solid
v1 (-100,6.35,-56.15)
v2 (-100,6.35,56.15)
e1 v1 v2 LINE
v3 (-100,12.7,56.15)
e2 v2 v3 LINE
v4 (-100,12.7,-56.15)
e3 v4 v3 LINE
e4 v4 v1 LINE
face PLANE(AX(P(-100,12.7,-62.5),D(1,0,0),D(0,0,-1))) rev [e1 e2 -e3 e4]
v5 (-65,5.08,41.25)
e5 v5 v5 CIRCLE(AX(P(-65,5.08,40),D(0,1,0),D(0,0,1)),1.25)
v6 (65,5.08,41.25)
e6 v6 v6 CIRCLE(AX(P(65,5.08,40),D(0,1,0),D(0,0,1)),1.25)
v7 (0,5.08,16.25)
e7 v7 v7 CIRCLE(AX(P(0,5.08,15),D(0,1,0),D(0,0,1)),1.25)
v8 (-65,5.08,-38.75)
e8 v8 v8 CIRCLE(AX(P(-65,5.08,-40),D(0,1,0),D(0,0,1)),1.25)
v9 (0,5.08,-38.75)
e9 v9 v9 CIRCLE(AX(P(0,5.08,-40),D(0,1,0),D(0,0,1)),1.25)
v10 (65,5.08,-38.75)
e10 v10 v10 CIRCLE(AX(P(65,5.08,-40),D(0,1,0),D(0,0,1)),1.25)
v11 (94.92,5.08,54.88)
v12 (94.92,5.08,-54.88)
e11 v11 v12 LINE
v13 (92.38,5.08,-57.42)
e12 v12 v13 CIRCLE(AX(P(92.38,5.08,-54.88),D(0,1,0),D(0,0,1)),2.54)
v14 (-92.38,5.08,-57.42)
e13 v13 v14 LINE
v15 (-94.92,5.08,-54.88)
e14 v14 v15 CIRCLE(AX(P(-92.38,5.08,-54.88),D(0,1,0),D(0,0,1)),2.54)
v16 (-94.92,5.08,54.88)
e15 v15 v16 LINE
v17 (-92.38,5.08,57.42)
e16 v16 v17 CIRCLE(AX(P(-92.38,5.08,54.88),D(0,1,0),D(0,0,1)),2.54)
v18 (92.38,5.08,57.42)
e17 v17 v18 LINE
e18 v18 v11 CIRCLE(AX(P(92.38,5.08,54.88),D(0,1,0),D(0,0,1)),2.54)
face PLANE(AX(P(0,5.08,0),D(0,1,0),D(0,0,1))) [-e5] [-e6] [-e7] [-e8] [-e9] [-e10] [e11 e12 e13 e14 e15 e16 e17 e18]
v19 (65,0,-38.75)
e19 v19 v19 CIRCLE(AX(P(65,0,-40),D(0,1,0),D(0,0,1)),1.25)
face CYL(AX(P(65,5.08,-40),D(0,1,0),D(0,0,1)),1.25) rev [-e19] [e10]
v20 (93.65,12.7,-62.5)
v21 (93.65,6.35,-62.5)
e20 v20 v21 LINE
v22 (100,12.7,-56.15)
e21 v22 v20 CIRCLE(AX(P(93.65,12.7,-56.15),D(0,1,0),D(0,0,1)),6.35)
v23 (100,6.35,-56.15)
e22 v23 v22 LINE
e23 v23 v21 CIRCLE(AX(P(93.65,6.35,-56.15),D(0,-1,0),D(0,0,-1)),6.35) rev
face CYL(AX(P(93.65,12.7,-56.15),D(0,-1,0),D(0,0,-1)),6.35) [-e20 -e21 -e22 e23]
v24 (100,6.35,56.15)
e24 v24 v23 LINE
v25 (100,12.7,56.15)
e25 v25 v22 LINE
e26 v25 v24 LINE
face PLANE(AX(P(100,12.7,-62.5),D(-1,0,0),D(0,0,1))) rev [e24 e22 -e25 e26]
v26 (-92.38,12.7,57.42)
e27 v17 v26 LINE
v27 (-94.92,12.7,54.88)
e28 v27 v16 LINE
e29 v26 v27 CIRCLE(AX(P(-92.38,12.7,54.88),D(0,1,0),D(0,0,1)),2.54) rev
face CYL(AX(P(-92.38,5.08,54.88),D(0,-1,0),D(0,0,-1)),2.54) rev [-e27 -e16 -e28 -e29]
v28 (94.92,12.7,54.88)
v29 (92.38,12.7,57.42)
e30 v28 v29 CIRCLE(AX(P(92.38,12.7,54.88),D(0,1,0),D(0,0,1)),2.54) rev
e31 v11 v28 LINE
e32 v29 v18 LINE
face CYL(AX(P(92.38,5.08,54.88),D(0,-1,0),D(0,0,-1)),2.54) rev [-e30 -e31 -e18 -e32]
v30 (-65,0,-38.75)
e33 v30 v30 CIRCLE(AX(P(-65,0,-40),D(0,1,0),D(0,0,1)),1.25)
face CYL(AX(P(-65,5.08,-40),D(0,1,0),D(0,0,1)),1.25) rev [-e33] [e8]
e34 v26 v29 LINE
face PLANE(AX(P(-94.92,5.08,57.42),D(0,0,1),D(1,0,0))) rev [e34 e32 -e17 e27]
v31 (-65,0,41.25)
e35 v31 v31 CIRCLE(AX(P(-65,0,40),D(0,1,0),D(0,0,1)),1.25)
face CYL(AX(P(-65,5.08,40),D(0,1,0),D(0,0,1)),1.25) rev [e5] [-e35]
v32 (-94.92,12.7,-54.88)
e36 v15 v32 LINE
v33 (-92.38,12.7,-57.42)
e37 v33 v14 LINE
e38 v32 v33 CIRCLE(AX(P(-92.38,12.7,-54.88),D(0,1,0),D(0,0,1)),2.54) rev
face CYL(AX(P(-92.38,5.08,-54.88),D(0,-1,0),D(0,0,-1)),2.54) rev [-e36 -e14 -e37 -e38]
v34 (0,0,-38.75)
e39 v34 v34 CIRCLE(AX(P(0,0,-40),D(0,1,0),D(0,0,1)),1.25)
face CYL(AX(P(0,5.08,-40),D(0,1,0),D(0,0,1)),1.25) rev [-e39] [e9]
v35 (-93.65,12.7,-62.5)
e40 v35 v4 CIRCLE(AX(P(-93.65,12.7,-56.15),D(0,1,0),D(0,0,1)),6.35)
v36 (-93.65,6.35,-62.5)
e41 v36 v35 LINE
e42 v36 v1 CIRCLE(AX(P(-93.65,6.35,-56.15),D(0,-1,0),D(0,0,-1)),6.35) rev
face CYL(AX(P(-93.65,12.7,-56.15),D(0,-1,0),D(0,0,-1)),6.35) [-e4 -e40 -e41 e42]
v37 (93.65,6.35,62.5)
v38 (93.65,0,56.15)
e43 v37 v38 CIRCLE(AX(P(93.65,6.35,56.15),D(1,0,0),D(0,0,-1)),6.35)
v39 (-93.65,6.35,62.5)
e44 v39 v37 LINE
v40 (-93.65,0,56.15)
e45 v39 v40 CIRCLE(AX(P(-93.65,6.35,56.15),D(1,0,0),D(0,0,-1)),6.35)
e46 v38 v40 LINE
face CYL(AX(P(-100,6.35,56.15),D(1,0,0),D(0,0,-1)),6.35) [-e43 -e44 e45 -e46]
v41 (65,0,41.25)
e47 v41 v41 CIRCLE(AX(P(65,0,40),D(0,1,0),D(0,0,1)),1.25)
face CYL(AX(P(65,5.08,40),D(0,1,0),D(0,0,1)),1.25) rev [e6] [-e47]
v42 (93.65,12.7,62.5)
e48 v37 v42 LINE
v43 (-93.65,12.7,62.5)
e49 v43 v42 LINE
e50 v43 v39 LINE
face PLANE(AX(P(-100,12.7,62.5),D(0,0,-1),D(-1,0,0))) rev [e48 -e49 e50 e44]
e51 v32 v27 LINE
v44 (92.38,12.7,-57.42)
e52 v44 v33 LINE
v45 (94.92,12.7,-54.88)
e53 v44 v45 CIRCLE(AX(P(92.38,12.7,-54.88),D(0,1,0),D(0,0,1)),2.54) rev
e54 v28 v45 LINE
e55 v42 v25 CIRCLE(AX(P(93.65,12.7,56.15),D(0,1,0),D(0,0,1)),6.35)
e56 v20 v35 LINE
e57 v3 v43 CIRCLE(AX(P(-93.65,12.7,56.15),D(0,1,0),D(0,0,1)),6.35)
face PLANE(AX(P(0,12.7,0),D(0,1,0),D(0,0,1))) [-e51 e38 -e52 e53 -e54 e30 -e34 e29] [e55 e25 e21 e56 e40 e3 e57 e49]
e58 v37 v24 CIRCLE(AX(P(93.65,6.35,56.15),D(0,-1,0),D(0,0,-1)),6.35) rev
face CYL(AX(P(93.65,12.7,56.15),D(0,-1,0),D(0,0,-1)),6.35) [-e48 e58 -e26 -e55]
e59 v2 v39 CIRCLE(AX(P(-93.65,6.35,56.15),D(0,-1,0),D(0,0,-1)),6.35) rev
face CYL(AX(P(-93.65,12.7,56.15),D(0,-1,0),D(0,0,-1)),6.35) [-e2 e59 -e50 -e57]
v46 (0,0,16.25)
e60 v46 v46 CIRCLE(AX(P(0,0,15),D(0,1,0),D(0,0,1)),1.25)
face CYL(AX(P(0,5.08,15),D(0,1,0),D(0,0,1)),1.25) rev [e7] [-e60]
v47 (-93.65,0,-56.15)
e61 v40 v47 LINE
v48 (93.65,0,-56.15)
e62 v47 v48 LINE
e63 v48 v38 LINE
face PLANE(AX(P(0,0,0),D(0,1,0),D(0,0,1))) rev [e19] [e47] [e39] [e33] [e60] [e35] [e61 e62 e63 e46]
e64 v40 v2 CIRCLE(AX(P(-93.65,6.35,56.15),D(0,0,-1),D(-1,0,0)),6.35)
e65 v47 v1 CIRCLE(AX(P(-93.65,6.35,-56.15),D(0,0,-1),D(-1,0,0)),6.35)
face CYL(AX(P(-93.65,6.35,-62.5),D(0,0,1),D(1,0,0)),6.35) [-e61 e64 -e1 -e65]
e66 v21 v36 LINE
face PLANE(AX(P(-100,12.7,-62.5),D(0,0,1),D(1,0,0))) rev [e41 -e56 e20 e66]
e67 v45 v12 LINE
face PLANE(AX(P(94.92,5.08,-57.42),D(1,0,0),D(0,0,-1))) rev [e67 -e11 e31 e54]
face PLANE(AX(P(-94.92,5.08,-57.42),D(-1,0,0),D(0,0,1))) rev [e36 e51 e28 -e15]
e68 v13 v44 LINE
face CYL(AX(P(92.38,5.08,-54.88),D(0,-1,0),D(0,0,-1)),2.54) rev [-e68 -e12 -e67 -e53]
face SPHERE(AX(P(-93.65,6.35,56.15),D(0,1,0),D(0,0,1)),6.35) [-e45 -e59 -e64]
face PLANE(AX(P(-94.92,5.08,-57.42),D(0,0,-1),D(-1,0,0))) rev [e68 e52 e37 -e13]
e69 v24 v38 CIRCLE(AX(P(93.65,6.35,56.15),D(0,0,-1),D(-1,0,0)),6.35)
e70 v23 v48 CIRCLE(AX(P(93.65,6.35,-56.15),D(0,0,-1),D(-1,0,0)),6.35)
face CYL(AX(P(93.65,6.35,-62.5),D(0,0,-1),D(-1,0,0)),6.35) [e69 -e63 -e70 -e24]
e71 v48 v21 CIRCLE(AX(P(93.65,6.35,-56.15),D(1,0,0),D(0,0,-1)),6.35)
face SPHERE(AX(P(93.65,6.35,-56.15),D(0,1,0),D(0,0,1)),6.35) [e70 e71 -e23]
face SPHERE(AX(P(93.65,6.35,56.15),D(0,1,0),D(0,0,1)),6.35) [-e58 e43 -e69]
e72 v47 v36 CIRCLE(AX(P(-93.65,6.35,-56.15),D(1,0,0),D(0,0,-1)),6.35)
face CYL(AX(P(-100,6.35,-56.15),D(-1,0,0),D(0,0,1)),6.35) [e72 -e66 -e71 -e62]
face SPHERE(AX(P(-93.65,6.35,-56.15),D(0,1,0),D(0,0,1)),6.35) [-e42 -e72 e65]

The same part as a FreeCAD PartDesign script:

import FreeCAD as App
import Part
import Sketcher
Q = App.Units.Quantity


def edges_at(feature, points):
    """Names of the edges that pass closest to the given points."""
    edges = feature.Shape.Edges
    near = lambda p: min(range(len(edges)), key=lambda i: edges[i].distToShape(Part.Vertex(*p))[0])
    return sorted({f"Edge{near(p) + 1}" for p in points})


def add_polygon(sketch, points):
    """Adds a closed chain of lines whose ends are joined by coincident constraints."""
    first, n = sketch.GeometryCount, len(points)
    for a, b in zip(points, points[1:] + points[:1]):
        sketch.addGeometry(Part.LineSegment(App.Vector(*a, 0), App.Vector(*b, 0)), False)
    for i in range(n):
        sketch.addConstraint(Sketcher.Constraint("Coincident", first + i, 2, first + (i + 1) % n, 1))

doc = App.newDocument("Part")
body = doc.addObject("PartDesign::Body", "Body")

# Sketch on XZ plane
sketch1 = doc.addObject("Sketcher::SketchObject", "Sketch")
body.addObject(sketch1)
sketch1.AttachmentSupport = (doc.XZ_Plane, [""])
sketch1.MapMode = "FlatFace"
add_polygon(sketch1, [(-100, -62.5), (-100, 62.5), (100, 62.5), (100, -62.5)])  # lines 0-3
sketch1.addConstraint(Sketcher.Constraint("Vertical", 0))
sketch1.addConstraint(Sketcher.Constraint("Horizontal", 1))
sketch1.addConstraint(Sketcher.Constraint("Vertical", 2))
sketch1.addConstraint(Sketcher.Constraint("Horizontal", 3))
sketch1.addConstraint(Sketcher.Constraint("Symmetric", 0, 2, 2, 2, -1, 1))
sketch1.addConstraint(Sketcher.Constraint("DistanceX", 1, 1, 1, 2, 200.0))
sketch1.addConstraint(Sketcher.Constraint("DistanceY", 0, 1, 0, 2, 125.0))
pad1 = doc.addObject("PartDesign::Pad", "Pad")
body.addObject(pad1)
pad1.Profile = sketch1
pad1.Length = Q("0.5 in")
pad1.Reversed = True

# Sketch on XZ plane
sketch2 = doc.addObject("Sketcher::SketchObject", "Sketch001")
body.addObject(sketch2)
sketch2.AttachmentSupport = (doc.XZ_Plane, [""])
sketch2.MapMode = "FlatFace"
sketch2.AttachmentOffset = App.Placement(App.Vector(0, 0, -0.5 * 25.4), App.Rotation())
add_polygon(sketch2, [(-94.92, -57.42), (-94.92, 57.42), (94.92, 57.42), (94.92, -57.42)])  # lines 0-3
sketch2.addConstraint(Sketcher.Constraint("Vertical", 0))
sketch2.addConstraint(Sketcher.Constraint("Horizontal", 1))
sketch2.addConstraint(Sketcher.Constraint("Vertical", 2))
sketch2.addConstraint(Sketcher.Constraint("Horizontal", 3))
sketch2.addConstraint(Sketcher.Constraint("Symmetric", 0, 2, 2, 2, -1, 1))
sketch2.addConstraint(Sketcher.Constraint("DistanceX", 1, 1, 1, 2, 189.84))
sketch2.addConstraint(Sketcher.Constraint("DistanceY", 0, 1, 0, 2, 114.84))
pocket1 = doc.addObject("PartDesign::Pocket", "Pocket")
body.addObject(pocket1)
pocket1.Profile = sketch2
pocket1.Length = Q("0.3 in")
pocket1.Reversed = True
doc.recompute()

fillet = doc.addObject("PartDesign::Fillet", "Fillet")
body.addObject(fillet)
fillet.Base = (pocket1, edges_at(pocket1, [
    (94.92, 8.89, -57.42),
    (94.92, 8.89, 57.42),
    (-94.92, 8.89, 57.42),
    (-94.92, 8.89, -57.42),
]))
fillet.Radius = Q("0.1 in")
doc.recompute()

fillet2 = doc.addObject("PartDesign::Fillet", "Fillet001")
body.addObject(fillet2)
fillet2.Base = (fillet, edges_at(fillet, [
    (-100, 6.35, -62.5),
    (100, 6.35, -62.5),
    (100, 6.35, 62.5),
    (-100, 6.35, 62.5),
]))
fillet2.Radius = Q("0.25 in")
doc.recompute()

fillet3 = doc.addObject("PartDesign::Fillet", "Fillet002")
body.addObject(fillet3)
fillet3.Base = (fillet2, edges_at(fillet2, [
    (0, 0, 62.5),
    (-100, 0, 0),
    (0, 0, -62.5),
    (100, 0, 0),
    (98.14, 0, 60.64),
    (98.14, 0, -60.64),
    (-98.14, 0, -60.64),
    (-98.14, 0, 60.64),
]))
fillet3.Radius = Q("0.25 in")

# Sketch on XZ plane
sketch3 = doc.addObject("Sketcher::SketchObject", "Sketch002")
body.addObject(sketch3)
sketch3.AttachmentSupport = (doc.XZ_Plane, [""])
sketch3.MapMode = "FlatFace"
sketch3.AttachmentOffset = App.Placement(App.Vector(0, 0, -0.2 * 25.4), App.Rotation())
sketch3.addGeometry(Part.Circle(App.Vector(0, 15, 0), App.Vector(0, 0, 1), 1.25), False)
sketch3.addGeometry(Part.Circle(App.Vector(-65, -40, 0), App.Vector(0, 0, 1), 1.25), False)
sketch3.addGeometry(Part.Circle(App.Vector(65, -40, 0), App.Vector(0, 0, 1), 1.25), False)
sketch3.addGeometry(Part.Circle(App.Vector(65, 40, 0), App.Vector(0, 0, 1), 1.25), False)
sketch3.addGeometry(Part.Circle(App.Vector(-65, 40, 0), App.Vector(0, 0, 1), 1.25), False)
sketch3.addGeometry(Part.Circle(App.Vector(0, -40, 0), App.Vector(0, 0, 1), 1.25), False)
sketch3.addConstraint(Sketcher.Constraint("Equal", 0, 1))
sketch3.addConstraint(Sketcher.Constraint("Equal", 1, 2))
sketch3.addConstraint(Sketcher.Constraint("Equal", 2, 3))
sketch3.addConstraint(Sketcher.Constraint("Equal", 3, 4))
sketch3.addConstraint(Sketcher.Constraint("Equal", 4, 5))
sketch3.addConstraint(Sketcher.Constraint("Symmetric", 1, 3, 3, 3, -1, 1))
sketch3.addConstraint(Sketcher.Constraint("Symmetric", 2, 3, 4, 3, -1, 1))
sketch3.addConstraint(Sketcher.Constraint("Symmetric", 1, 3, 2, 3, -2))
sketch3.addConstraint(Sketcher.Constraint("PointOnObject", 0, 3, -2))
sketch3.addConstraint(Sketcher.Constraint("PointOnObject", 5, 3, -2))
sketch3.addConstraint(Sketcher.Constraint("Horizontal", 2, 3, 5, 3))
sketch3.addConstraint(Sketcher.Constraint("Diameter", 0, 2.5))
sketch3.addConstraint(Sketcher.Constraint("DistanceY", -1, 1, 0, 3, 15.0))
sketch3.addConstraint(Sketcher.Constraint("DistanceX", 1, 3, -1, 1, 65.0))
sketch3.addConstraint(Sketcher.Constraint("DistanceY", 1, 3, -1, 1, 40.0))
doc.recompute()
hole = doc.addObject("PartDesign::Hole", "Hole")
body.addObject(hole)
hole.Profile = sketch3
hole.ThreadType = "None"
hole.Diameter = 2.5
hole.DepthType = "ThroughAll"
hole.Reversed = True

doc.recompute()
